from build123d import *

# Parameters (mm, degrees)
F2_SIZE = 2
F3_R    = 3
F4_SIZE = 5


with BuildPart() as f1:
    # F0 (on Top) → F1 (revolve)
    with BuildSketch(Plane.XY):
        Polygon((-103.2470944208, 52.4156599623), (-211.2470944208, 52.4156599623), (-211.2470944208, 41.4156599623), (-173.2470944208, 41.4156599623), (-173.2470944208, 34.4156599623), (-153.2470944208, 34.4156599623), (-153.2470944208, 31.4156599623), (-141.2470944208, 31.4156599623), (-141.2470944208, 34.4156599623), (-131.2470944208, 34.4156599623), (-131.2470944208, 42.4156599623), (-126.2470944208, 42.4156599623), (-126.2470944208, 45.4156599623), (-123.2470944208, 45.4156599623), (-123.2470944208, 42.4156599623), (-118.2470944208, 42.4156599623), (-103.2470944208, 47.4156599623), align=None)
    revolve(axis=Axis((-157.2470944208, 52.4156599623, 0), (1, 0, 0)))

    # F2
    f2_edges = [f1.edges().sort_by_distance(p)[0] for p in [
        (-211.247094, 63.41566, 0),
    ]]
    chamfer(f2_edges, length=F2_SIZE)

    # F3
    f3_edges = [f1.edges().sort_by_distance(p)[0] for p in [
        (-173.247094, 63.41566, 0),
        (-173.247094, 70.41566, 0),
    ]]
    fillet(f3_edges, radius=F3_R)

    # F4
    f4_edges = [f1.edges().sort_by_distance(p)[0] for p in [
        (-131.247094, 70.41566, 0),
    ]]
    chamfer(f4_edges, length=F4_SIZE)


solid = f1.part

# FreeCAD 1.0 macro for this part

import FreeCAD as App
import Part
import Sketcher
Q = App.Units.Quantity


def edges_at(feature, points):
    """Names of the edges that pass closest to the given points."""
    edges = feature.Shape.Edges
    near = lambda p: min(range(len(edges)), key=lambda i: edges[i].distToShape(Part.Vertex(*p))[0])
    return sorted({f"Edge{near(p) + 1}" for p in points})


def add_polygon(sketch, points):
    """Adds a closed chain of lines whose ends are joined by coincident constraints."""
    first, n = sketch.GeometryCount, len(points)
    for a, b in zip(points, points[1:] + points[:1]):
        sketch.addGeometry(Part.LineSegment(App.Vector(*a, 0), App.Vector(*b, 0)), False)
    for i in range(n):
        sketch.addConstraint(Sketcher.Constraint("Coincident", first + i, 2, first + (i + 1) % n, 1))

doc = App.newDocument("Part")
body = doc.addObject("PartDesign::Body", "Body")

# Sketch on XY plane
sketch1 = body.newObject("Sketcher::SketchObject", "Sketch")
sketch1.AttachmentSupport = (doc.getObject("XY_Plane"), [""])
sketch1.MapMode = "FlatFace"
add_polygon(sketch1, [(-103.2, 52.4), (-211.2, 52.4), (-211.2, 41.4), (-173.2, 41.4), (-173.2, 34.4), (-153.2, 34.4), (-153.2, 31.4), (-141.2, 31.4), (-141.2, 34.4), (-131.2, 34.4), (-131.2, 42.4), (-126.2, 42.4), (-126.2, 45.4), (-123.2, 45.4), (-123.2, 42.4), (-118.2, 42.4), (-103.2, 47.4)])  # lines 0-16
sketch1.addGeometry(Part.LineSegment(App.Vector(-211.2, 52.4, 0), App.Vector(-103.2, 52.4, 0)), True)  # axis
sketch1.addConstraint([
    Sketcher.Constraint("Horizontal", 0),
    Sketcher.Constraint("Vertical", 1),
    Sketcher.Constraint("Horizontal", 2),
    Sketcher.Constraint("Vertical", 3),
    Sketcher.Constraint("Horizontal", 4),
    Sketcher.Constraint("Vertical", 5),
    Sketcher.Constraint("Horizontal", 6),
    Sketcher.Constraint("Vertical", 7),
    Sketcher.Constraint("Horizontal", 8),
    Sketcher.Constraint("Vertical", 9),
    Sketcher.Constraint("Horizontal", 10),
    Sketcher.Constraint("Vertical", 11),
    Sketcher.Constraint("Horizontal", 12),
    Sketcher.Constraint("Vertical", 13),
    Sketcher.Constraint("Horizontal", 14),
    Sketcher.Constraint("Vertical", 16),
    Sketcher.Constraint("Horizontal", 17),
    Sketcher.Constraint("Coincident", 17, 1, 0, 2),
    Sketcher.Constraint("Horizontal", 4, 2, 7, 2),
    Sketcher.Constraint("Horizontal", 10, 2, 13, 2),
    Sketcher.Constraint("Vertical", 15, 2, 17, 2),
    Sketcher.Constraint("Equal", 10, 14),
    Sketcher.Constraint("Equal", 12, 5),
    Sketcher.Constraint("Equal", 7, 11),
    Sketcher.Constraint("Equal", 14, 16),
    Sketcher.Constraint("DistanceX", 0, 2, 0, 1, Q("108 mm")),
    Sketcher.Constraint("DistanceX", 2, 1, 2, 2, Q("38 mm")),
    Sketcher.Constraint("DistanceX", 4, 1, 4, 2, Q("20 mm")),
    Sketcher.Constraint("DistanceX", 6, 1, 6, 2, Q("12 mm")),
    Sketcher.Constraint("DistanceX", 8, 1, 8, 2, Q("10 mm")),
    Sketcher.Constraint("DistanceX", 10, 1, 10, 2, Q("5 mm")),
    Sketcher.Constraint("DistanceX", 12, 1, 12, 2, Q("3 mm")),
    Sketcher.Constraint("DistanceY", 1, 2, 1, 1, Q("11 mm")),
    Sketcher.Constraint("DistanceY", 3, 2, 3, 1, Q("7 mm")),
    Sketcher.Constraint("DistanceY", 9, 1, 9, 2, Q("8 mm")),
    Sketcher.Constraint("DistanceY", -1, 1, 0, 2, Q("52.41566 mm")),
    Sketcher.Constraint("DistanceX", 0, 2, -1, 1, Q("211.247094 mm")),
])
revolution = body.newObject("PartDesign::Revolution", "Revolution")
revolution.Profile = sketch1
revolution.ReferenceAxis = (sketch1, ["Axis0"])
revolution.Angle = 360
doc.recompute()

chamfer = body.newObject("PartDesign::Chamfer", "Chamfer")
chamfer.Base = (revolution, edges_at(revolution, [(-211.247, 63.416, 0)]))
chamfer.Size = 2
doc.recompute()

fillet = body.newObject("PartDesign::Fillet", "Fillet")
fillet.Base = (chamfer, edges_at(chamfer, [(-173.247, 63.416, 0), (-173.247, 70.416, 0)]))
fillet.Radius = 3
doc.recompute()

chamfer2 = body.newObject("PartDesign::Chamfer", "Chamfer001")
chamfer2.Base = (fillet, edges_at(fillet, [(-131.247, 70.416, 0)]))
chamfer2.Size = 5

doc.recompute()
